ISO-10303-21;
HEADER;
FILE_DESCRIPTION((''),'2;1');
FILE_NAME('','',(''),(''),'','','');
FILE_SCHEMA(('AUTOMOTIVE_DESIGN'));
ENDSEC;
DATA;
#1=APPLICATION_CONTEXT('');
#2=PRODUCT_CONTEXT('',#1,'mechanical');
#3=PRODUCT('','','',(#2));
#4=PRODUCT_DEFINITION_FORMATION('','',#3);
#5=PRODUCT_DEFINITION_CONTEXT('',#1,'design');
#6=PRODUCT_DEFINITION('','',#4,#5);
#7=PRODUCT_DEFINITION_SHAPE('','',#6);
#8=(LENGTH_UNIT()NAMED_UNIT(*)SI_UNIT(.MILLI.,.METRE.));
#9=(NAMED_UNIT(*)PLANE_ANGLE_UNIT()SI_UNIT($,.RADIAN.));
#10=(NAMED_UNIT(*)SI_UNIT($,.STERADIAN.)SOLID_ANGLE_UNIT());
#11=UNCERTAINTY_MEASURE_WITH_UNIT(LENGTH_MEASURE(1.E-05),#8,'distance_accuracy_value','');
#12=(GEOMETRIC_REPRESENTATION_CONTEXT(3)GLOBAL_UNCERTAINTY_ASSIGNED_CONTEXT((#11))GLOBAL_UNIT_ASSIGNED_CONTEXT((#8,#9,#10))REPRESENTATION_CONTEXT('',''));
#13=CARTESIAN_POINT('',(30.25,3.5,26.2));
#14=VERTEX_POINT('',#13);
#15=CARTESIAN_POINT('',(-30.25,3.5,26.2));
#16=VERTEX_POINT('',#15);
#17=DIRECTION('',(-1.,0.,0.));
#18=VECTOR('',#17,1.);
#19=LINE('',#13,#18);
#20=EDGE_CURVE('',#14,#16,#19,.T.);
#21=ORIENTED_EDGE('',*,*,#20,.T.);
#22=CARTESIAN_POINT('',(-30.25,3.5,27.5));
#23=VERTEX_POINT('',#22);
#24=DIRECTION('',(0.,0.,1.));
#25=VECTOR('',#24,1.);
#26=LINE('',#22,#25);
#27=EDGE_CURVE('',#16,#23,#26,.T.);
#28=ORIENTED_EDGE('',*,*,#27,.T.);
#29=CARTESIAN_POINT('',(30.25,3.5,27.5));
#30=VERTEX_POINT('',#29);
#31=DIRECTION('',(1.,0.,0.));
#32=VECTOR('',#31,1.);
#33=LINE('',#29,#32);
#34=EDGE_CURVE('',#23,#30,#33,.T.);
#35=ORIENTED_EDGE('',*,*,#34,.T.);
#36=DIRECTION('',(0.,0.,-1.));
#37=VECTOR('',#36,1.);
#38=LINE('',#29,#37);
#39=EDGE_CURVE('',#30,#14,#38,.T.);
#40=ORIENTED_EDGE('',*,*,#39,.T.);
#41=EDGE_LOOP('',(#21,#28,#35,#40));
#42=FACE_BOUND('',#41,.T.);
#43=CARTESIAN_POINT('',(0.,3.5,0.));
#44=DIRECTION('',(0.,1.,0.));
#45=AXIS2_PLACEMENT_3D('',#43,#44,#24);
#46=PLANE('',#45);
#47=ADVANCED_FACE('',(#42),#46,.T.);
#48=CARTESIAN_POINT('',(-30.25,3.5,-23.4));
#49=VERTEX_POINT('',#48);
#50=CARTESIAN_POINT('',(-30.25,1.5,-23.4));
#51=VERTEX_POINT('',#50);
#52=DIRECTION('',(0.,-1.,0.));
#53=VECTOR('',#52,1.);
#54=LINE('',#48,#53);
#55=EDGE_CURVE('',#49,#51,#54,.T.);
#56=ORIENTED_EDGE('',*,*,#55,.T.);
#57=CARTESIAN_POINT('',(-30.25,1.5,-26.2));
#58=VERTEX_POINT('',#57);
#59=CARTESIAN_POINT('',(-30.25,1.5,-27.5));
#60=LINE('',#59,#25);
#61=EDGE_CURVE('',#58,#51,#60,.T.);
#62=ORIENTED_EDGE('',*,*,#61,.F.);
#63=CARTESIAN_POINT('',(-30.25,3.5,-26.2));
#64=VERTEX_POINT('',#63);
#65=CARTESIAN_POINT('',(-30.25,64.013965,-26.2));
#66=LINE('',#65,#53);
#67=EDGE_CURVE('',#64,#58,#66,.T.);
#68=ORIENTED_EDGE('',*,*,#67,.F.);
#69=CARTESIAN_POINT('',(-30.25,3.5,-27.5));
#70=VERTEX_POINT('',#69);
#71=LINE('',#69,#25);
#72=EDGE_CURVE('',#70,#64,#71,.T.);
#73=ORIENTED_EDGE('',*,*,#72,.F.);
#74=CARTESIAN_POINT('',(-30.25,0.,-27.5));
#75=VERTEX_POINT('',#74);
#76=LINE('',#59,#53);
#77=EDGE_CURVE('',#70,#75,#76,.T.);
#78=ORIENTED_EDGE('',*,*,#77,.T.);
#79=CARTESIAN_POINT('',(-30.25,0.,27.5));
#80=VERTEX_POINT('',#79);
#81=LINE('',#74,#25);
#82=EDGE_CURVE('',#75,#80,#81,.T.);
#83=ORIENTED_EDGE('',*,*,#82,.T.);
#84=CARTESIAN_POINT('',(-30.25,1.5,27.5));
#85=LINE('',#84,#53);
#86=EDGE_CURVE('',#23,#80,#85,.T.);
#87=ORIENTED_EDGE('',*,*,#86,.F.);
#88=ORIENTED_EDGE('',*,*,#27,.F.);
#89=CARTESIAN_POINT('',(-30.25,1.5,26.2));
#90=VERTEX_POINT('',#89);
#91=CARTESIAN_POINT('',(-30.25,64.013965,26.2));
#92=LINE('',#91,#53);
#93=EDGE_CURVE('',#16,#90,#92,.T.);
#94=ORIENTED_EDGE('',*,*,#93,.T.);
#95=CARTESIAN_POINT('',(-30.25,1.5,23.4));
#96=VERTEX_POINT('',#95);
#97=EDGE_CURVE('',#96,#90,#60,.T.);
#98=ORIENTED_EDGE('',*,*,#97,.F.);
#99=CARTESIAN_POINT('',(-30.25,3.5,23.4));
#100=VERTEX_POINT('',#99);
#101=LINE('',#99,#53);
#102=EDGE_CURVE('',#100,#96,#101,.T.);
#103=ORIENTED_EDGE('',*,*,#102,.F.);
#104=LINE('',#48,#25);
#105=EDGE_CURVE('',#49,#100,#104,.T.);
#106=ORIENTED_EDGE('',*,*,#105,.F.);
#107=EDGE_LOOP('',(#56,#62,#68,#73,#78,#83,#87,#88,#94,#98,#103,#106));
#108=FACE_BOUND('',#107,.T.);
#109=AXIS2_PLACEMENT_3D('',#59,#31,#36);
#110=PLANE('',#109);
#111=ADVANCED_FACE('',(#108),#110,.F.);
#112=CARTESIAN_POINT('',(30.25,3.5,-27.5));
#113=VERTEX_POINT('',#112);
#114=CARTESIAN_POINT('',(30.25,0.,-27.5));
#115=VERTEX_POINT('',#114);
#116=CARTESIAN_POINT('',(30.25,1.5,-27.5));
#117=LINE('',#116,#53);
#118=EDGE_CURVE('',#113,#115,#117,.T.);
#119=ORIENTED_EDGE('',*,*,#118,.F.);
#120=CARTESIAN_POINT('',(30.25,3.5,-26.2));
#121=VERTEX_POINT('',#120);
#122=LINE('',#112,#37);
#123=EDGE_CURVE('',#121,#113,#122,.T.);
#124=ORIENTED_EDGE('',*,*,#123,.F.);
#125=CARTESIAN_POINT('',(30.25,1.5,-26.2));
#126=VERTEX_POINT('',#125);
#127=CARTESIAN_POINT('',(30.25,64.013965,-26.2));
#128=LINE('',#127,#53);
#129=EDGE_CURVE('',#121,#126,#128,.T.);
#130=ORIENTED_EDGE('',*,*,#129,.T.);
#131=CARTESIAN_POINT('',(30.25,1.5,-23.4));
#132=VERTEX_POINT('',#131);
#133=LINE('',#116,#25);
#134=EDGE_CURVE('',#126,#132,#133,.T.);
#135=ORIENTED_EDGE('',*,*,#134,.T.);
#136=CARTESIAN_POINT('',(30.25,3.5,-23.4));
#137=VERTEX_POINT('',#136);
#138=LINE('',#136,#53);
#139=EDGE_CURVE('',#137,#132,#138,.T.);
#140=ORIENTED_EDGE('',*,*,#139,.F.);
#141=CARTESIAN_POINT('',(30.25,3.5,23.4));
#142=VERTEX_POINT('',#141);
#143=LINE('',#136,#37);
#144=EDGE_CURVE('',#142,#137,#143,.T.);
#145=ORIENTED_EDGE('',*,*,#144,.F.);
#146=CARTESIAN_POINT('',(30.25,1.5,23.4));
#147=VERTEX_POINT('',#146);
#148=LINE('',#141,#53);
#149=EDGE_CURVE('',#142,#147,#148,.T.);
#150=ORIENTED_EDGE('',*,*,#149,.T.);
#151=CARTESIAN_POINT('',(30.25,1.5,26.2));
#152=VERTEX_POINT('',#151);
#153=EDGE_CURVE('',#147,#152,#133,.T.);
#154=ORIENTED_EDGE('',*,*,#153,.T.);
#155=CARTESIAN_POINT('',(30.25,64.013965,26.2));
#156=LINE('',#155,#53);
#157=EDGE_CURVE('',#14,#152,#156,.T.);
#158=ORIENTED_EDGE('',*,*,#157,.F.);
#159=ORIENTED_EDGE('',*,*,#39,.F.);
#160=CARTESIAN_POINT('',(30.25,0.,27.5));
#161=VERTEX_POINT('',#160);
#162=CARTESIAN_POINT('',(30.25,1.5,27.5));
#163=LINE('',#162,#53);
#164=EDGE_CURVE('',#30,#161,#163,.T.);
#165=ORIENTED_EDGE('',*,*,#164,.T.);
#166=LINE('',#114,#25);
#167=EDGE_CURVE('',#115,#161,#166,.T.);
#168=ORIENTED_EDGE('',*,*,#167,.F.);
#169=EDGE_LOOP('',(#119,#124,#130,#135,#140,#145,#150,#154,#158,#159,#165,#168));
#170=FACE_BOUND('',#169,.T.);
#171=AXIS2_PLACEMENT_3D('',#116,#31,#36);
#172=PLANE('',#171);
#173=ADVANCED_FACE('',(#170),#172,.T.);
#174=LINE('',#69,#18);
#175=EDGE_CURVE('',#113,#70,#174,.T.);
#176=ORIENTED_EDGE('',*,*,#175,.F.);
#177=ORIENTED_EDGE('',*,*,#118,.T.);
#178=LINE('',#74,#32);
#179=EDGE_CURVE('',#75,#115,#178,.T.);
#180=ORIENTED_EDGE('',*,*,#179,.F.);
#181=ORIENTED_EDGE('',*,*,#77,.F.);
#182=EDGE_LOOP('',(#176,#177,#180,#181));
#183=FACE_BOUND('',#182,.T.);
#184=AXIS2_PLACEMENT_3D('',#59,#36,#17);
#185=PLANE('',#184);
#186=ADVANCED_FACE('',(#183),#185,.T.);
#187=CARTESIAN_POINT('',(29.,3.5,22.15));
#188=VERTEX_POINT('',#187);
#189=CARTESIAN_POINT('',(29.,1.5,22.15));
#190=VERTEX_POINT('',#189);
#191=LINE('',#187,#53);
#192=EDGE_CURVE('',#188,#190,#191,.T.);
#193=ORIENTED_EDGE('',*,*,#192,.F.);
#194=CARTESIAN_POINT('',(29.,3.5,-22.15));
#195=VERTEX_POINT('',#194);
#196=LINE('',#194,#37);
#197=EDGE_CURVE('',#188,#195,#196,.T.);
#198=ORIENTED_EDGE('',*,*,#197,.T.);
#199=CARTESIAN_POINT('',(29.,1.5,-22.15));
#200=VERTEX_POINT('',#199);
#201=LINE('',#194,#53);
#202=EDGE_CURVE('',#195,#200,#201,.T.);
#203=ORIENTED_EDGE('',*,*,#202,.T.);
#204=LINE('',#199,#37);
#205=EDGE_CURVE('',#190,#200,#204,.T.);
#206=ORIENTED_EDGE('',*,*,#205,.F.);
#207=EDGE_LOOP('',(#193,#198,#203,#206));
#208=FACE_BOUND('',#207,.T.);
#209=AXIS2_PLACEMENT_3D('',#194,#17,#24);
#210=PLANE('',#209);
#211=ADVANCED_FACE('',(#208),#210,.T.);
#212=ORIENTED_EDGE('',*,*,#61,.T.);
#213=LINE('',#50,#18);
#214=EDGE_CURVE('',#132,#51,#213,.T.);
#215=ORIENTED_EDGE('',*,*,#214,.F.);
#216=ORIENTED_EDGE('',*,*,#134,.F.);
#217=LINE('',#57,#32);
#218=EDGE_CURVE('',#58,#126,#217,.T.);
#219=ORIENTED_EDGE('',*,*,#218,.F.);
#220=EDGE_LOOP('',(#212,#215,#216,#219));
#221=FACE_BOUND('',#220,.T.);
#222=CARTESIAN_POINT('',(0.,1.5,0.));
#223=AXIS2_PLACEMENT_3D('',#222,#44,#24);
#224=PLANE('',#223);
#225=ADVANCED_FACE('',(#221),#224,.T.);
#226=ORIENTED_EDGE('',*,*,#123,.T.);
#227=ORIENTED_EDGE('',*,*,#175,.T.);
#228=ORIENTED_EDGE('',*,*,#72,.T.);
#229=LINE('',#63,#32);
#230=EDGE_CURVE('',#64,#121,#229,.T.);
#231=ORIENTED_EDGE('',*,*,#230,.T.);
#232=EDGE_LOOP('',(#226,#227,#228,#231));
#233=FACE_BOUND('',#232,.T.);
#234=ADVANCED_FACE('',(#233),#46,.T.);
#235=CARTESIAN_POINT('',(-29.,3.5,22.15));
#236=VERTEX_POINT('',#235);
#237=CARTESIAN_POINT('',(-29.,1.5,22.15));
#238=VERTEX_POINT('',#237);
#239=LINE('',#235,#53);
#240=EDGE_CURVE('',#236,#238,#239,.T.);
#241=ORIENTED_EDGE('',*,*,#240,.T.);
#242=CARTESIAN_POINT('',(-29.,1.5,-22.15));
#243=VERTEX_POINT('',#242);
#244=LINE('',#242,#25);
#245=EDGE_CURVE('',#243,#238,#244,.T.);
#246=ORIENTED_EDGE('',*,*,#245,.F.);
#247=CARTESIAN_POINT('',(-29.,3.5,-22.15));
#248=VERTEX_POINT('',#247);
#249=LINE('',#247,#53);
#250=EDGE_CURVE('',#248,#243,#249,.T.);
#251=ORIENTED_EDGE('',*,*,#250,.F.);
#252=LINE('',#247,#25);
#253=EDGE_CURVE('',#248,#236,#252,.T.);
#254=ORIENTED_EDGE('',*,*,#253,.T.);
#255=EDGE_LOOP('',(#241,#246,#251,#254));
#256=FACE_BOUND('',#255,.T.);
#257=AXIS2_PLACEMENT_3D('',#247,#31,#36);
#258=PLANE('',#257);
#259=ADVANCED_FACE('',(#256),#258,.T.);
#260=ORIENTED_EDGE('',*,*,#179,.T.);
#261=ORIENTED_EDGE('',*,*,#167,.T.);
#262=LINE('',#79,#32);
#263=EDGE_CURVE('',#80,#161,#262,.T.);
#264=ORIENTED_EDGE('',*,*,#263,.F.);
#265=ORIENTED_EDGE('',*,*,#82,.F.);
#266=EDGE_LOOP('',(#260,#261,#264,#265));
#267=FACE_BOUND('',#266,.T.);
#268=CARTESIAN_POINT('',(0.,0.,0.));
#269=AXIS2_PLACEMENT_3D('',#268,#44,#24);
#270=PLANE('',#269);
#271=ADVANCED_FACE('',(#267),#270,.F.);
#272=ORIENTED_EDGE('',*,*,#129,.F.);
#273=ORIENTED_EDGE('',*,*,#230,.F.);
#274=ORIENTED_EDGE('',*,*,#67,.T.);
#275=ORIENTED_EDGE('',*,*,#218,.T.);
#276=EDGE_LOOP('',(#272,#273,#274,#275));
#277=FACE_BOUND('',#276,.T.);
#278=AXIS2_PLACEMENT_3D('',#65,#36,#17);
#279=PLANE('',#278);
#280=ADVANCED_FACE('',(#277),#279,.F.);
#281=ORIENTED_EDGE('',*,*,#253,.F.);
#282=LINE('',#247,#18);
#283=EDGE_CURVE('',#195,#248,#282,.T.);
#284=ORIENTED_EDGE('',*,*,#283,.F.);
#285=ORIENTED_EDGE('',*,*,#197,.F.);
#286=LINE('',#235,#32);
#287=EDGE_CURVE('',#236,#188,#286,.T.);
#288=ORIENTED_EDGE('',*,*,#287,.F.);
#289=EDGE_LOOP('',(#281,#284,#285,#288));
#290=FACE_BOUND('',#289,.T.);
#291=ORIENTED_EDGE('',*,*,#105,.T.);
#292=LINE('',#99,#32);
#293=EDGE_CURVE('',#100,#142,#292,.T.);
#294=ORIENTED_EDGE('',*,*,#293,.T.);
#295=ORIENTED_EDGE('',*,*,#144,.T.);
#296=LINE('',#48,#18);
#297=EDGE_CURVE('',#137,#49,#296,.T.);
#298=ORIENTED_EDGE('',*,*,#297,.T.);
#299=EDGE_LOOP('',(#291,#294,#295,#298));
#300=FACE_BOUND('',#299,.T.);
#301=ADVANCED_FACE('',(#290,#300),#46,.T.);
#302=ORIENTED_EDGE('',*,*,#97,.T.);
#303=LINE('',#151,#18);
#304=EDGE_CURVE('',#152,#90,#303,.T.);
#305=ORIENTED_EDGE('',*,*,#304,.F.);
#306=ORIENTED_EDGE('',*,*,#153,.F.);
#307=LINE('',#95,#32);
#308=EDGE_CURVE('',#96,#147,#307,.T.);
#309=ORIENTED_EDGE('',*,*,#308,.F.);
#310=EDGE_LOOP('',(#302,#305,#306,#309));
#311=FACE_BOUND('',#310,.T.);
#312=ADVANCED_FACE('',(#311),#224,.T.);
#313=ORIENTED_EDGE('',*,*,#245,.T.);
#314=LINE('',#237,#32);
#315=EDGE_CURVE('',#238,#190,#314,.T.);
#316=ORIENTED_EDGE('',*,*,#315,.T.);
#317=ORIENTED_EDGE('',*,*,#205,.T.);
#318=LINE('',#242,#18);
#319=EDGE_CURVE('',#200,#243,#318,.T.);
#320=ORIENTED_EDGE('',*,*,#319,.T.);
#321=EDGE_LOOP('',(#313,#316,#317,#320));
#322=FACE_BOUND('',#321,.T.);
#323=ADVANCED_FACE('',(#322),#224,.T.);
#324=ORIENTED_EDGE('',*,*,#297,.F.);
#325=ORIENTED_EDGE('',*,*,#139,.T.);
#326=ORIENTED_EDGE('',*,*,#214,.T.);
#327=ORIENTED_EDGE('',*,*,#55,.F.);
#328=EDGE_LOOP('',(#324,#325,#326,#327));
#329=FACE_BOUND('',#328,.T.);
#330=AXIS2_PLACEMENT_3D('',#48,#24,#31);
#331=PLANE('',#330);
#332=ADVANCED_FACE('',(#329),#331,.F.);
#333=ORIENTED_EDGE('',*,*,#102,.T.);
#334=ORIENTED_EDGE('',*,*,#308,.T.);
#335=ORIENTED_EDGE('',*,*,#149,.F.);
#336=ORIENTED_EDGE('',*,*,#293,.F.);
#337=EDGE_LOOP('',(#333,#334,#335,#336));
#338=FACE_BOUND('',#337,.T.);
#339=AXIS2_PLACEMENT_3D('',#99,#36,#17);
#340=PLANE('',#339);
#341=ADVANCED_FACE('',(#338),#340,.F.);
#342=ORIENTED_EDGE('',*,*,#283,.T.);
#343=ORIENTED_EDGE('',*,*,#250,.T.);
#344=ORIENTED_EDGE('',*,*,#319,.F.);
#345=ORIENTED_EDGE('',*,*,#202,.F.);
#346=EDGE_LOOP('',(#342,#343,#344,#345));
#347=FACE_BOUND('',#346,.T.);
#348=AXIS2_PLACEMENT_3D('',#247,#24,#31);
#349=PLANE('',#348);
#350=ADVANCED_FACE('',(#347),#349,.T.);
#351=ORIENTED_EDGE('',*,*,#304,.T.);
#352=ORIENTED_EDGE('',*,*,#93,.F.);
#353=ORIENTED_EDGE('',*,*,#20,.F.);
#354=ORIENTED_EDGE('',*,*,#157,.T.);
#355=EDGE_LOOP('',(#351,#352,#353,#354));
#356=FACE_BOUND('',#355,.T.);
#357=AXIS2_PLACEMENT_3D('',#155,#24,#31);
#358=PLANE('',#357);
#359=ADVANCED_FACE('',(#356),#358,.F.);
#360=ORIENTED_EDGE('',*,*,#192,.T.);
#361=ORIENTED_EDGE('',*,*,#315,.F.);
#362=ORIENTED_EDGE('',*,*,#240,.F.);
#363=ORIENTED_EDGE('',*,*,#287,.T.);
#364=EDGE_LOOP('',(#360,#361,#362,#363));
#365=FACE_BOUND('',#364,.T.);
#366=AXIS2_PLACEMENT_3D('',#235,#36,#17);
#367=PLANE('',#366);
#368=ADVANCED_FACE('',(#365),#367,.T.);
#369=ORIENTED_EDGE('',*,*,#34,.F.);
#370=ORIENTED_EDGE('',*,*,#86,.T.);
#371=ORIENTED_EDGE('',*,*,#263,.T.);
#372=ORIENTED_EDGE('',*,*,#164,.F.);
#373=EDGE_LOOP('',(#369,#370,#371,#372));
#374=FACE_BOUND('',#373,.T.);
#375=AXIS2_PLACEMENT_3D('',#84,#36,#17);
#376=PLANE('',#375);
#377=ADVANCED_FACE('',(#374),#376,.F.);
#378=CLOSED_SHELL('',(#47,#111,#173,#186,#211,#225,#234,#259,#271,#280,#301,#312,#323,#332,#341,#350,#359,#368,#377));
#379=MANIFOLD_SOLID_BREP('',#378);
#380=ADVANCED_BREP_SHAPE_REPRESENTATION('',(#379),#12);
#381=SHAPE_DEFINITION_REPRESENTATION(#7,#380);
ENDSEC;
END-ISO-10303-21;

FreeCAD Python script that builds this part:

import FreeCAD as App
import Part
import Sketcher


def add_polygon(sketch, points):
    """Adds a closed chain of lines whose ends are joined by coincident constraints."""
    first, n = sketch.GeometryCount, len(points)
    for a, b in zip(points, points[1:] + points[:1]):
        sketch.addGeometry(Part.LineSegment(App.Vector(*a, 0), App.Vector(*b, 0)), False)
    for i in range(n):
        sketch.addConstraint(Sketcher.Constraint("Coincident", first + i, 2, first + (i + 1) % n, 1))

doc = App.newDocument("Part")
body = doc.addObject("PartDesign::Body", "Body")

# Sketch on XZ plane
sketch1 = body.newObject("Sketcher::SketchObject", "Sketch")
sketch1.AttachmentSupport = (doc.getObject("XZ_Plane"), [""])
sketch1.MapMode = "FlatFace"
add_polygon(sketch1, [(-30.25, -27.5), (-30.25, 27.5), (30.25, 27.5), (30.25, -27.5)])  # lines 0-3
sketch1.addConstraint([
    Sketcher.Constraint("Vertical", 0),
    Sketcher.Constraint("Horizontal", 1),
    Sketcher.Constraint("Vertical", 2),
    Sketcher.Constraint("Horizontal", 3),
    Sketcher.Constraint("Symmetric", 0, 2, 2, 2, -1, 1),
    Sketcher.Constraint("DistanceY", 0, 1, 0, 2, 55.0),
    Sketcher.Constraint("DistanceX", 1, 1, 1, 2, 60.5),
])
pad1 = body.newObject("PartDesign::Pad", "Pad")
pad1.Profile = sketch1
pad1.Length = 1.5
pad1.Reversed = True

# Sketch on XZ plane
sketch2 = body.newObject("Sketcher::SketchObject", "Sketch001")
sketch2.AttachmentSupport = (doc.getObject("XZ_Plane"), [""])
sketch2.MapMode = "FlatFace"
sketch2.AttachmentOffset = App.Placement(App.Vector(0, 0, -1.5), App.Rotation())
add_polygon(sketch2, [(-30.25, -23.4), (-30.25, 23.4), (30.25, 23.4), (30.25, -23.4)])  # lines 0-3
add_polygon(sketch2, [(29, 22.15), (-29, 22.15), (-29, -22.15), (29, -22.15)])  # lines 4-7
sketch2.addConstraint([
    Sketcher.Constraint("Vertical", 0),
    Sketcher.Constraint("Horizontal", 1),
    Sketcher.Constraint("Vertical", 2),
    Sketcher.Constraint("Horizontal", 3),
    Sketcher.Constraint("Horizontal", 4),
    Sketcher.Constraint("Vertical", 5),
    Sketcher.Constraint("Horizontal", 6),
    Sketcher.Constraint("Vertical", 7),
    Sketcher.Constraint("Symmetric", 0, 2, 2, 2, -1, 1),
    Sketcher.Constraint("Symmetric", 4, 2, 6, 2, -1, 1),
    Sketcher.Constraint("DistanceX", 4, 2, 4, 1, 58.0),
    Sketcher.Constraint("DistanceX", 1, 1, 1, 2, 60.5),
    Sketcher.Constraint("DistanceY", 0, 1, 0, 2, 46.8),
    Sketcher.Constraint("DistanceY", 5, 2, 5, 1, 44.3),
])
pad2 = body.newObject("PartDesign::Pad", "Pad001")
pad2.Profile = sketch2
pad2.Length = 2
pad2.Reversed = True

# Sketch on XZ plane
sketch3 = body.newObject("Sketcher::SketchObject", "Sketch002")
sketch3.AttachmentSupport = (doc.getObject("XZ_Plane"), [""])
sketch3.MapMode = "FlatFace"
sketch3.AttachmentOffset = App.Placement(App.Vector(0, 0, -1.5), App.Rotation())
add_polygon(sketch3, [(-30.25, -27.5), (-30.25, -26.2), (30.25, -26.2), (30.25, -27.5)])  # lines 0-3
add_polygon(sketch3, [(-30.25, 26.2), (-30.25, 27.5), (30.25, 27.5), (30.25, 26.2)])  # lines 4-7
sketch3.addConstraint([
    Sketcher.Constraint("Vertical", 0),
    Sketcher.Constraint("Horizontal", 1),
    Sketcher.Constraint("Vertical", 2),
    Sketcher.Constraint("Horizontal", 3),
    Sketcher.Constraint("Vertical", 4),
    Sketcher.Constraint("Horizontal", 5),
    Sketcher.Constraint("Vertical", 6),
    Sketcher.Constraint("Horizontal", 7),
    Sketcher.Constraint("Symmetric", 2, 2, 4, 2, -1, 1),
    Sketcher.Constraint("Symmetric", 0, 2, 6, 2, -1, 1),
    Sketcher.Constraint("Vertical", 3, 2, 4, 2),
    Sketcher.Constraint("DistanceX", 1, 1, 1, 2, 60.5),
    Sketcher.Constraint("DistanceY", 0, 1, 0, 2, 1.3),
    Sketcher.Constraint("DistanceY", 3, 2, 4, 2, 55.0),
])
pad3 = body.newObject("PartDesign::Pad", "Pad002")
pad3.Profile = sketch3
pad3.Length = 2
pad3.Reversed = True

doc.recompute()
